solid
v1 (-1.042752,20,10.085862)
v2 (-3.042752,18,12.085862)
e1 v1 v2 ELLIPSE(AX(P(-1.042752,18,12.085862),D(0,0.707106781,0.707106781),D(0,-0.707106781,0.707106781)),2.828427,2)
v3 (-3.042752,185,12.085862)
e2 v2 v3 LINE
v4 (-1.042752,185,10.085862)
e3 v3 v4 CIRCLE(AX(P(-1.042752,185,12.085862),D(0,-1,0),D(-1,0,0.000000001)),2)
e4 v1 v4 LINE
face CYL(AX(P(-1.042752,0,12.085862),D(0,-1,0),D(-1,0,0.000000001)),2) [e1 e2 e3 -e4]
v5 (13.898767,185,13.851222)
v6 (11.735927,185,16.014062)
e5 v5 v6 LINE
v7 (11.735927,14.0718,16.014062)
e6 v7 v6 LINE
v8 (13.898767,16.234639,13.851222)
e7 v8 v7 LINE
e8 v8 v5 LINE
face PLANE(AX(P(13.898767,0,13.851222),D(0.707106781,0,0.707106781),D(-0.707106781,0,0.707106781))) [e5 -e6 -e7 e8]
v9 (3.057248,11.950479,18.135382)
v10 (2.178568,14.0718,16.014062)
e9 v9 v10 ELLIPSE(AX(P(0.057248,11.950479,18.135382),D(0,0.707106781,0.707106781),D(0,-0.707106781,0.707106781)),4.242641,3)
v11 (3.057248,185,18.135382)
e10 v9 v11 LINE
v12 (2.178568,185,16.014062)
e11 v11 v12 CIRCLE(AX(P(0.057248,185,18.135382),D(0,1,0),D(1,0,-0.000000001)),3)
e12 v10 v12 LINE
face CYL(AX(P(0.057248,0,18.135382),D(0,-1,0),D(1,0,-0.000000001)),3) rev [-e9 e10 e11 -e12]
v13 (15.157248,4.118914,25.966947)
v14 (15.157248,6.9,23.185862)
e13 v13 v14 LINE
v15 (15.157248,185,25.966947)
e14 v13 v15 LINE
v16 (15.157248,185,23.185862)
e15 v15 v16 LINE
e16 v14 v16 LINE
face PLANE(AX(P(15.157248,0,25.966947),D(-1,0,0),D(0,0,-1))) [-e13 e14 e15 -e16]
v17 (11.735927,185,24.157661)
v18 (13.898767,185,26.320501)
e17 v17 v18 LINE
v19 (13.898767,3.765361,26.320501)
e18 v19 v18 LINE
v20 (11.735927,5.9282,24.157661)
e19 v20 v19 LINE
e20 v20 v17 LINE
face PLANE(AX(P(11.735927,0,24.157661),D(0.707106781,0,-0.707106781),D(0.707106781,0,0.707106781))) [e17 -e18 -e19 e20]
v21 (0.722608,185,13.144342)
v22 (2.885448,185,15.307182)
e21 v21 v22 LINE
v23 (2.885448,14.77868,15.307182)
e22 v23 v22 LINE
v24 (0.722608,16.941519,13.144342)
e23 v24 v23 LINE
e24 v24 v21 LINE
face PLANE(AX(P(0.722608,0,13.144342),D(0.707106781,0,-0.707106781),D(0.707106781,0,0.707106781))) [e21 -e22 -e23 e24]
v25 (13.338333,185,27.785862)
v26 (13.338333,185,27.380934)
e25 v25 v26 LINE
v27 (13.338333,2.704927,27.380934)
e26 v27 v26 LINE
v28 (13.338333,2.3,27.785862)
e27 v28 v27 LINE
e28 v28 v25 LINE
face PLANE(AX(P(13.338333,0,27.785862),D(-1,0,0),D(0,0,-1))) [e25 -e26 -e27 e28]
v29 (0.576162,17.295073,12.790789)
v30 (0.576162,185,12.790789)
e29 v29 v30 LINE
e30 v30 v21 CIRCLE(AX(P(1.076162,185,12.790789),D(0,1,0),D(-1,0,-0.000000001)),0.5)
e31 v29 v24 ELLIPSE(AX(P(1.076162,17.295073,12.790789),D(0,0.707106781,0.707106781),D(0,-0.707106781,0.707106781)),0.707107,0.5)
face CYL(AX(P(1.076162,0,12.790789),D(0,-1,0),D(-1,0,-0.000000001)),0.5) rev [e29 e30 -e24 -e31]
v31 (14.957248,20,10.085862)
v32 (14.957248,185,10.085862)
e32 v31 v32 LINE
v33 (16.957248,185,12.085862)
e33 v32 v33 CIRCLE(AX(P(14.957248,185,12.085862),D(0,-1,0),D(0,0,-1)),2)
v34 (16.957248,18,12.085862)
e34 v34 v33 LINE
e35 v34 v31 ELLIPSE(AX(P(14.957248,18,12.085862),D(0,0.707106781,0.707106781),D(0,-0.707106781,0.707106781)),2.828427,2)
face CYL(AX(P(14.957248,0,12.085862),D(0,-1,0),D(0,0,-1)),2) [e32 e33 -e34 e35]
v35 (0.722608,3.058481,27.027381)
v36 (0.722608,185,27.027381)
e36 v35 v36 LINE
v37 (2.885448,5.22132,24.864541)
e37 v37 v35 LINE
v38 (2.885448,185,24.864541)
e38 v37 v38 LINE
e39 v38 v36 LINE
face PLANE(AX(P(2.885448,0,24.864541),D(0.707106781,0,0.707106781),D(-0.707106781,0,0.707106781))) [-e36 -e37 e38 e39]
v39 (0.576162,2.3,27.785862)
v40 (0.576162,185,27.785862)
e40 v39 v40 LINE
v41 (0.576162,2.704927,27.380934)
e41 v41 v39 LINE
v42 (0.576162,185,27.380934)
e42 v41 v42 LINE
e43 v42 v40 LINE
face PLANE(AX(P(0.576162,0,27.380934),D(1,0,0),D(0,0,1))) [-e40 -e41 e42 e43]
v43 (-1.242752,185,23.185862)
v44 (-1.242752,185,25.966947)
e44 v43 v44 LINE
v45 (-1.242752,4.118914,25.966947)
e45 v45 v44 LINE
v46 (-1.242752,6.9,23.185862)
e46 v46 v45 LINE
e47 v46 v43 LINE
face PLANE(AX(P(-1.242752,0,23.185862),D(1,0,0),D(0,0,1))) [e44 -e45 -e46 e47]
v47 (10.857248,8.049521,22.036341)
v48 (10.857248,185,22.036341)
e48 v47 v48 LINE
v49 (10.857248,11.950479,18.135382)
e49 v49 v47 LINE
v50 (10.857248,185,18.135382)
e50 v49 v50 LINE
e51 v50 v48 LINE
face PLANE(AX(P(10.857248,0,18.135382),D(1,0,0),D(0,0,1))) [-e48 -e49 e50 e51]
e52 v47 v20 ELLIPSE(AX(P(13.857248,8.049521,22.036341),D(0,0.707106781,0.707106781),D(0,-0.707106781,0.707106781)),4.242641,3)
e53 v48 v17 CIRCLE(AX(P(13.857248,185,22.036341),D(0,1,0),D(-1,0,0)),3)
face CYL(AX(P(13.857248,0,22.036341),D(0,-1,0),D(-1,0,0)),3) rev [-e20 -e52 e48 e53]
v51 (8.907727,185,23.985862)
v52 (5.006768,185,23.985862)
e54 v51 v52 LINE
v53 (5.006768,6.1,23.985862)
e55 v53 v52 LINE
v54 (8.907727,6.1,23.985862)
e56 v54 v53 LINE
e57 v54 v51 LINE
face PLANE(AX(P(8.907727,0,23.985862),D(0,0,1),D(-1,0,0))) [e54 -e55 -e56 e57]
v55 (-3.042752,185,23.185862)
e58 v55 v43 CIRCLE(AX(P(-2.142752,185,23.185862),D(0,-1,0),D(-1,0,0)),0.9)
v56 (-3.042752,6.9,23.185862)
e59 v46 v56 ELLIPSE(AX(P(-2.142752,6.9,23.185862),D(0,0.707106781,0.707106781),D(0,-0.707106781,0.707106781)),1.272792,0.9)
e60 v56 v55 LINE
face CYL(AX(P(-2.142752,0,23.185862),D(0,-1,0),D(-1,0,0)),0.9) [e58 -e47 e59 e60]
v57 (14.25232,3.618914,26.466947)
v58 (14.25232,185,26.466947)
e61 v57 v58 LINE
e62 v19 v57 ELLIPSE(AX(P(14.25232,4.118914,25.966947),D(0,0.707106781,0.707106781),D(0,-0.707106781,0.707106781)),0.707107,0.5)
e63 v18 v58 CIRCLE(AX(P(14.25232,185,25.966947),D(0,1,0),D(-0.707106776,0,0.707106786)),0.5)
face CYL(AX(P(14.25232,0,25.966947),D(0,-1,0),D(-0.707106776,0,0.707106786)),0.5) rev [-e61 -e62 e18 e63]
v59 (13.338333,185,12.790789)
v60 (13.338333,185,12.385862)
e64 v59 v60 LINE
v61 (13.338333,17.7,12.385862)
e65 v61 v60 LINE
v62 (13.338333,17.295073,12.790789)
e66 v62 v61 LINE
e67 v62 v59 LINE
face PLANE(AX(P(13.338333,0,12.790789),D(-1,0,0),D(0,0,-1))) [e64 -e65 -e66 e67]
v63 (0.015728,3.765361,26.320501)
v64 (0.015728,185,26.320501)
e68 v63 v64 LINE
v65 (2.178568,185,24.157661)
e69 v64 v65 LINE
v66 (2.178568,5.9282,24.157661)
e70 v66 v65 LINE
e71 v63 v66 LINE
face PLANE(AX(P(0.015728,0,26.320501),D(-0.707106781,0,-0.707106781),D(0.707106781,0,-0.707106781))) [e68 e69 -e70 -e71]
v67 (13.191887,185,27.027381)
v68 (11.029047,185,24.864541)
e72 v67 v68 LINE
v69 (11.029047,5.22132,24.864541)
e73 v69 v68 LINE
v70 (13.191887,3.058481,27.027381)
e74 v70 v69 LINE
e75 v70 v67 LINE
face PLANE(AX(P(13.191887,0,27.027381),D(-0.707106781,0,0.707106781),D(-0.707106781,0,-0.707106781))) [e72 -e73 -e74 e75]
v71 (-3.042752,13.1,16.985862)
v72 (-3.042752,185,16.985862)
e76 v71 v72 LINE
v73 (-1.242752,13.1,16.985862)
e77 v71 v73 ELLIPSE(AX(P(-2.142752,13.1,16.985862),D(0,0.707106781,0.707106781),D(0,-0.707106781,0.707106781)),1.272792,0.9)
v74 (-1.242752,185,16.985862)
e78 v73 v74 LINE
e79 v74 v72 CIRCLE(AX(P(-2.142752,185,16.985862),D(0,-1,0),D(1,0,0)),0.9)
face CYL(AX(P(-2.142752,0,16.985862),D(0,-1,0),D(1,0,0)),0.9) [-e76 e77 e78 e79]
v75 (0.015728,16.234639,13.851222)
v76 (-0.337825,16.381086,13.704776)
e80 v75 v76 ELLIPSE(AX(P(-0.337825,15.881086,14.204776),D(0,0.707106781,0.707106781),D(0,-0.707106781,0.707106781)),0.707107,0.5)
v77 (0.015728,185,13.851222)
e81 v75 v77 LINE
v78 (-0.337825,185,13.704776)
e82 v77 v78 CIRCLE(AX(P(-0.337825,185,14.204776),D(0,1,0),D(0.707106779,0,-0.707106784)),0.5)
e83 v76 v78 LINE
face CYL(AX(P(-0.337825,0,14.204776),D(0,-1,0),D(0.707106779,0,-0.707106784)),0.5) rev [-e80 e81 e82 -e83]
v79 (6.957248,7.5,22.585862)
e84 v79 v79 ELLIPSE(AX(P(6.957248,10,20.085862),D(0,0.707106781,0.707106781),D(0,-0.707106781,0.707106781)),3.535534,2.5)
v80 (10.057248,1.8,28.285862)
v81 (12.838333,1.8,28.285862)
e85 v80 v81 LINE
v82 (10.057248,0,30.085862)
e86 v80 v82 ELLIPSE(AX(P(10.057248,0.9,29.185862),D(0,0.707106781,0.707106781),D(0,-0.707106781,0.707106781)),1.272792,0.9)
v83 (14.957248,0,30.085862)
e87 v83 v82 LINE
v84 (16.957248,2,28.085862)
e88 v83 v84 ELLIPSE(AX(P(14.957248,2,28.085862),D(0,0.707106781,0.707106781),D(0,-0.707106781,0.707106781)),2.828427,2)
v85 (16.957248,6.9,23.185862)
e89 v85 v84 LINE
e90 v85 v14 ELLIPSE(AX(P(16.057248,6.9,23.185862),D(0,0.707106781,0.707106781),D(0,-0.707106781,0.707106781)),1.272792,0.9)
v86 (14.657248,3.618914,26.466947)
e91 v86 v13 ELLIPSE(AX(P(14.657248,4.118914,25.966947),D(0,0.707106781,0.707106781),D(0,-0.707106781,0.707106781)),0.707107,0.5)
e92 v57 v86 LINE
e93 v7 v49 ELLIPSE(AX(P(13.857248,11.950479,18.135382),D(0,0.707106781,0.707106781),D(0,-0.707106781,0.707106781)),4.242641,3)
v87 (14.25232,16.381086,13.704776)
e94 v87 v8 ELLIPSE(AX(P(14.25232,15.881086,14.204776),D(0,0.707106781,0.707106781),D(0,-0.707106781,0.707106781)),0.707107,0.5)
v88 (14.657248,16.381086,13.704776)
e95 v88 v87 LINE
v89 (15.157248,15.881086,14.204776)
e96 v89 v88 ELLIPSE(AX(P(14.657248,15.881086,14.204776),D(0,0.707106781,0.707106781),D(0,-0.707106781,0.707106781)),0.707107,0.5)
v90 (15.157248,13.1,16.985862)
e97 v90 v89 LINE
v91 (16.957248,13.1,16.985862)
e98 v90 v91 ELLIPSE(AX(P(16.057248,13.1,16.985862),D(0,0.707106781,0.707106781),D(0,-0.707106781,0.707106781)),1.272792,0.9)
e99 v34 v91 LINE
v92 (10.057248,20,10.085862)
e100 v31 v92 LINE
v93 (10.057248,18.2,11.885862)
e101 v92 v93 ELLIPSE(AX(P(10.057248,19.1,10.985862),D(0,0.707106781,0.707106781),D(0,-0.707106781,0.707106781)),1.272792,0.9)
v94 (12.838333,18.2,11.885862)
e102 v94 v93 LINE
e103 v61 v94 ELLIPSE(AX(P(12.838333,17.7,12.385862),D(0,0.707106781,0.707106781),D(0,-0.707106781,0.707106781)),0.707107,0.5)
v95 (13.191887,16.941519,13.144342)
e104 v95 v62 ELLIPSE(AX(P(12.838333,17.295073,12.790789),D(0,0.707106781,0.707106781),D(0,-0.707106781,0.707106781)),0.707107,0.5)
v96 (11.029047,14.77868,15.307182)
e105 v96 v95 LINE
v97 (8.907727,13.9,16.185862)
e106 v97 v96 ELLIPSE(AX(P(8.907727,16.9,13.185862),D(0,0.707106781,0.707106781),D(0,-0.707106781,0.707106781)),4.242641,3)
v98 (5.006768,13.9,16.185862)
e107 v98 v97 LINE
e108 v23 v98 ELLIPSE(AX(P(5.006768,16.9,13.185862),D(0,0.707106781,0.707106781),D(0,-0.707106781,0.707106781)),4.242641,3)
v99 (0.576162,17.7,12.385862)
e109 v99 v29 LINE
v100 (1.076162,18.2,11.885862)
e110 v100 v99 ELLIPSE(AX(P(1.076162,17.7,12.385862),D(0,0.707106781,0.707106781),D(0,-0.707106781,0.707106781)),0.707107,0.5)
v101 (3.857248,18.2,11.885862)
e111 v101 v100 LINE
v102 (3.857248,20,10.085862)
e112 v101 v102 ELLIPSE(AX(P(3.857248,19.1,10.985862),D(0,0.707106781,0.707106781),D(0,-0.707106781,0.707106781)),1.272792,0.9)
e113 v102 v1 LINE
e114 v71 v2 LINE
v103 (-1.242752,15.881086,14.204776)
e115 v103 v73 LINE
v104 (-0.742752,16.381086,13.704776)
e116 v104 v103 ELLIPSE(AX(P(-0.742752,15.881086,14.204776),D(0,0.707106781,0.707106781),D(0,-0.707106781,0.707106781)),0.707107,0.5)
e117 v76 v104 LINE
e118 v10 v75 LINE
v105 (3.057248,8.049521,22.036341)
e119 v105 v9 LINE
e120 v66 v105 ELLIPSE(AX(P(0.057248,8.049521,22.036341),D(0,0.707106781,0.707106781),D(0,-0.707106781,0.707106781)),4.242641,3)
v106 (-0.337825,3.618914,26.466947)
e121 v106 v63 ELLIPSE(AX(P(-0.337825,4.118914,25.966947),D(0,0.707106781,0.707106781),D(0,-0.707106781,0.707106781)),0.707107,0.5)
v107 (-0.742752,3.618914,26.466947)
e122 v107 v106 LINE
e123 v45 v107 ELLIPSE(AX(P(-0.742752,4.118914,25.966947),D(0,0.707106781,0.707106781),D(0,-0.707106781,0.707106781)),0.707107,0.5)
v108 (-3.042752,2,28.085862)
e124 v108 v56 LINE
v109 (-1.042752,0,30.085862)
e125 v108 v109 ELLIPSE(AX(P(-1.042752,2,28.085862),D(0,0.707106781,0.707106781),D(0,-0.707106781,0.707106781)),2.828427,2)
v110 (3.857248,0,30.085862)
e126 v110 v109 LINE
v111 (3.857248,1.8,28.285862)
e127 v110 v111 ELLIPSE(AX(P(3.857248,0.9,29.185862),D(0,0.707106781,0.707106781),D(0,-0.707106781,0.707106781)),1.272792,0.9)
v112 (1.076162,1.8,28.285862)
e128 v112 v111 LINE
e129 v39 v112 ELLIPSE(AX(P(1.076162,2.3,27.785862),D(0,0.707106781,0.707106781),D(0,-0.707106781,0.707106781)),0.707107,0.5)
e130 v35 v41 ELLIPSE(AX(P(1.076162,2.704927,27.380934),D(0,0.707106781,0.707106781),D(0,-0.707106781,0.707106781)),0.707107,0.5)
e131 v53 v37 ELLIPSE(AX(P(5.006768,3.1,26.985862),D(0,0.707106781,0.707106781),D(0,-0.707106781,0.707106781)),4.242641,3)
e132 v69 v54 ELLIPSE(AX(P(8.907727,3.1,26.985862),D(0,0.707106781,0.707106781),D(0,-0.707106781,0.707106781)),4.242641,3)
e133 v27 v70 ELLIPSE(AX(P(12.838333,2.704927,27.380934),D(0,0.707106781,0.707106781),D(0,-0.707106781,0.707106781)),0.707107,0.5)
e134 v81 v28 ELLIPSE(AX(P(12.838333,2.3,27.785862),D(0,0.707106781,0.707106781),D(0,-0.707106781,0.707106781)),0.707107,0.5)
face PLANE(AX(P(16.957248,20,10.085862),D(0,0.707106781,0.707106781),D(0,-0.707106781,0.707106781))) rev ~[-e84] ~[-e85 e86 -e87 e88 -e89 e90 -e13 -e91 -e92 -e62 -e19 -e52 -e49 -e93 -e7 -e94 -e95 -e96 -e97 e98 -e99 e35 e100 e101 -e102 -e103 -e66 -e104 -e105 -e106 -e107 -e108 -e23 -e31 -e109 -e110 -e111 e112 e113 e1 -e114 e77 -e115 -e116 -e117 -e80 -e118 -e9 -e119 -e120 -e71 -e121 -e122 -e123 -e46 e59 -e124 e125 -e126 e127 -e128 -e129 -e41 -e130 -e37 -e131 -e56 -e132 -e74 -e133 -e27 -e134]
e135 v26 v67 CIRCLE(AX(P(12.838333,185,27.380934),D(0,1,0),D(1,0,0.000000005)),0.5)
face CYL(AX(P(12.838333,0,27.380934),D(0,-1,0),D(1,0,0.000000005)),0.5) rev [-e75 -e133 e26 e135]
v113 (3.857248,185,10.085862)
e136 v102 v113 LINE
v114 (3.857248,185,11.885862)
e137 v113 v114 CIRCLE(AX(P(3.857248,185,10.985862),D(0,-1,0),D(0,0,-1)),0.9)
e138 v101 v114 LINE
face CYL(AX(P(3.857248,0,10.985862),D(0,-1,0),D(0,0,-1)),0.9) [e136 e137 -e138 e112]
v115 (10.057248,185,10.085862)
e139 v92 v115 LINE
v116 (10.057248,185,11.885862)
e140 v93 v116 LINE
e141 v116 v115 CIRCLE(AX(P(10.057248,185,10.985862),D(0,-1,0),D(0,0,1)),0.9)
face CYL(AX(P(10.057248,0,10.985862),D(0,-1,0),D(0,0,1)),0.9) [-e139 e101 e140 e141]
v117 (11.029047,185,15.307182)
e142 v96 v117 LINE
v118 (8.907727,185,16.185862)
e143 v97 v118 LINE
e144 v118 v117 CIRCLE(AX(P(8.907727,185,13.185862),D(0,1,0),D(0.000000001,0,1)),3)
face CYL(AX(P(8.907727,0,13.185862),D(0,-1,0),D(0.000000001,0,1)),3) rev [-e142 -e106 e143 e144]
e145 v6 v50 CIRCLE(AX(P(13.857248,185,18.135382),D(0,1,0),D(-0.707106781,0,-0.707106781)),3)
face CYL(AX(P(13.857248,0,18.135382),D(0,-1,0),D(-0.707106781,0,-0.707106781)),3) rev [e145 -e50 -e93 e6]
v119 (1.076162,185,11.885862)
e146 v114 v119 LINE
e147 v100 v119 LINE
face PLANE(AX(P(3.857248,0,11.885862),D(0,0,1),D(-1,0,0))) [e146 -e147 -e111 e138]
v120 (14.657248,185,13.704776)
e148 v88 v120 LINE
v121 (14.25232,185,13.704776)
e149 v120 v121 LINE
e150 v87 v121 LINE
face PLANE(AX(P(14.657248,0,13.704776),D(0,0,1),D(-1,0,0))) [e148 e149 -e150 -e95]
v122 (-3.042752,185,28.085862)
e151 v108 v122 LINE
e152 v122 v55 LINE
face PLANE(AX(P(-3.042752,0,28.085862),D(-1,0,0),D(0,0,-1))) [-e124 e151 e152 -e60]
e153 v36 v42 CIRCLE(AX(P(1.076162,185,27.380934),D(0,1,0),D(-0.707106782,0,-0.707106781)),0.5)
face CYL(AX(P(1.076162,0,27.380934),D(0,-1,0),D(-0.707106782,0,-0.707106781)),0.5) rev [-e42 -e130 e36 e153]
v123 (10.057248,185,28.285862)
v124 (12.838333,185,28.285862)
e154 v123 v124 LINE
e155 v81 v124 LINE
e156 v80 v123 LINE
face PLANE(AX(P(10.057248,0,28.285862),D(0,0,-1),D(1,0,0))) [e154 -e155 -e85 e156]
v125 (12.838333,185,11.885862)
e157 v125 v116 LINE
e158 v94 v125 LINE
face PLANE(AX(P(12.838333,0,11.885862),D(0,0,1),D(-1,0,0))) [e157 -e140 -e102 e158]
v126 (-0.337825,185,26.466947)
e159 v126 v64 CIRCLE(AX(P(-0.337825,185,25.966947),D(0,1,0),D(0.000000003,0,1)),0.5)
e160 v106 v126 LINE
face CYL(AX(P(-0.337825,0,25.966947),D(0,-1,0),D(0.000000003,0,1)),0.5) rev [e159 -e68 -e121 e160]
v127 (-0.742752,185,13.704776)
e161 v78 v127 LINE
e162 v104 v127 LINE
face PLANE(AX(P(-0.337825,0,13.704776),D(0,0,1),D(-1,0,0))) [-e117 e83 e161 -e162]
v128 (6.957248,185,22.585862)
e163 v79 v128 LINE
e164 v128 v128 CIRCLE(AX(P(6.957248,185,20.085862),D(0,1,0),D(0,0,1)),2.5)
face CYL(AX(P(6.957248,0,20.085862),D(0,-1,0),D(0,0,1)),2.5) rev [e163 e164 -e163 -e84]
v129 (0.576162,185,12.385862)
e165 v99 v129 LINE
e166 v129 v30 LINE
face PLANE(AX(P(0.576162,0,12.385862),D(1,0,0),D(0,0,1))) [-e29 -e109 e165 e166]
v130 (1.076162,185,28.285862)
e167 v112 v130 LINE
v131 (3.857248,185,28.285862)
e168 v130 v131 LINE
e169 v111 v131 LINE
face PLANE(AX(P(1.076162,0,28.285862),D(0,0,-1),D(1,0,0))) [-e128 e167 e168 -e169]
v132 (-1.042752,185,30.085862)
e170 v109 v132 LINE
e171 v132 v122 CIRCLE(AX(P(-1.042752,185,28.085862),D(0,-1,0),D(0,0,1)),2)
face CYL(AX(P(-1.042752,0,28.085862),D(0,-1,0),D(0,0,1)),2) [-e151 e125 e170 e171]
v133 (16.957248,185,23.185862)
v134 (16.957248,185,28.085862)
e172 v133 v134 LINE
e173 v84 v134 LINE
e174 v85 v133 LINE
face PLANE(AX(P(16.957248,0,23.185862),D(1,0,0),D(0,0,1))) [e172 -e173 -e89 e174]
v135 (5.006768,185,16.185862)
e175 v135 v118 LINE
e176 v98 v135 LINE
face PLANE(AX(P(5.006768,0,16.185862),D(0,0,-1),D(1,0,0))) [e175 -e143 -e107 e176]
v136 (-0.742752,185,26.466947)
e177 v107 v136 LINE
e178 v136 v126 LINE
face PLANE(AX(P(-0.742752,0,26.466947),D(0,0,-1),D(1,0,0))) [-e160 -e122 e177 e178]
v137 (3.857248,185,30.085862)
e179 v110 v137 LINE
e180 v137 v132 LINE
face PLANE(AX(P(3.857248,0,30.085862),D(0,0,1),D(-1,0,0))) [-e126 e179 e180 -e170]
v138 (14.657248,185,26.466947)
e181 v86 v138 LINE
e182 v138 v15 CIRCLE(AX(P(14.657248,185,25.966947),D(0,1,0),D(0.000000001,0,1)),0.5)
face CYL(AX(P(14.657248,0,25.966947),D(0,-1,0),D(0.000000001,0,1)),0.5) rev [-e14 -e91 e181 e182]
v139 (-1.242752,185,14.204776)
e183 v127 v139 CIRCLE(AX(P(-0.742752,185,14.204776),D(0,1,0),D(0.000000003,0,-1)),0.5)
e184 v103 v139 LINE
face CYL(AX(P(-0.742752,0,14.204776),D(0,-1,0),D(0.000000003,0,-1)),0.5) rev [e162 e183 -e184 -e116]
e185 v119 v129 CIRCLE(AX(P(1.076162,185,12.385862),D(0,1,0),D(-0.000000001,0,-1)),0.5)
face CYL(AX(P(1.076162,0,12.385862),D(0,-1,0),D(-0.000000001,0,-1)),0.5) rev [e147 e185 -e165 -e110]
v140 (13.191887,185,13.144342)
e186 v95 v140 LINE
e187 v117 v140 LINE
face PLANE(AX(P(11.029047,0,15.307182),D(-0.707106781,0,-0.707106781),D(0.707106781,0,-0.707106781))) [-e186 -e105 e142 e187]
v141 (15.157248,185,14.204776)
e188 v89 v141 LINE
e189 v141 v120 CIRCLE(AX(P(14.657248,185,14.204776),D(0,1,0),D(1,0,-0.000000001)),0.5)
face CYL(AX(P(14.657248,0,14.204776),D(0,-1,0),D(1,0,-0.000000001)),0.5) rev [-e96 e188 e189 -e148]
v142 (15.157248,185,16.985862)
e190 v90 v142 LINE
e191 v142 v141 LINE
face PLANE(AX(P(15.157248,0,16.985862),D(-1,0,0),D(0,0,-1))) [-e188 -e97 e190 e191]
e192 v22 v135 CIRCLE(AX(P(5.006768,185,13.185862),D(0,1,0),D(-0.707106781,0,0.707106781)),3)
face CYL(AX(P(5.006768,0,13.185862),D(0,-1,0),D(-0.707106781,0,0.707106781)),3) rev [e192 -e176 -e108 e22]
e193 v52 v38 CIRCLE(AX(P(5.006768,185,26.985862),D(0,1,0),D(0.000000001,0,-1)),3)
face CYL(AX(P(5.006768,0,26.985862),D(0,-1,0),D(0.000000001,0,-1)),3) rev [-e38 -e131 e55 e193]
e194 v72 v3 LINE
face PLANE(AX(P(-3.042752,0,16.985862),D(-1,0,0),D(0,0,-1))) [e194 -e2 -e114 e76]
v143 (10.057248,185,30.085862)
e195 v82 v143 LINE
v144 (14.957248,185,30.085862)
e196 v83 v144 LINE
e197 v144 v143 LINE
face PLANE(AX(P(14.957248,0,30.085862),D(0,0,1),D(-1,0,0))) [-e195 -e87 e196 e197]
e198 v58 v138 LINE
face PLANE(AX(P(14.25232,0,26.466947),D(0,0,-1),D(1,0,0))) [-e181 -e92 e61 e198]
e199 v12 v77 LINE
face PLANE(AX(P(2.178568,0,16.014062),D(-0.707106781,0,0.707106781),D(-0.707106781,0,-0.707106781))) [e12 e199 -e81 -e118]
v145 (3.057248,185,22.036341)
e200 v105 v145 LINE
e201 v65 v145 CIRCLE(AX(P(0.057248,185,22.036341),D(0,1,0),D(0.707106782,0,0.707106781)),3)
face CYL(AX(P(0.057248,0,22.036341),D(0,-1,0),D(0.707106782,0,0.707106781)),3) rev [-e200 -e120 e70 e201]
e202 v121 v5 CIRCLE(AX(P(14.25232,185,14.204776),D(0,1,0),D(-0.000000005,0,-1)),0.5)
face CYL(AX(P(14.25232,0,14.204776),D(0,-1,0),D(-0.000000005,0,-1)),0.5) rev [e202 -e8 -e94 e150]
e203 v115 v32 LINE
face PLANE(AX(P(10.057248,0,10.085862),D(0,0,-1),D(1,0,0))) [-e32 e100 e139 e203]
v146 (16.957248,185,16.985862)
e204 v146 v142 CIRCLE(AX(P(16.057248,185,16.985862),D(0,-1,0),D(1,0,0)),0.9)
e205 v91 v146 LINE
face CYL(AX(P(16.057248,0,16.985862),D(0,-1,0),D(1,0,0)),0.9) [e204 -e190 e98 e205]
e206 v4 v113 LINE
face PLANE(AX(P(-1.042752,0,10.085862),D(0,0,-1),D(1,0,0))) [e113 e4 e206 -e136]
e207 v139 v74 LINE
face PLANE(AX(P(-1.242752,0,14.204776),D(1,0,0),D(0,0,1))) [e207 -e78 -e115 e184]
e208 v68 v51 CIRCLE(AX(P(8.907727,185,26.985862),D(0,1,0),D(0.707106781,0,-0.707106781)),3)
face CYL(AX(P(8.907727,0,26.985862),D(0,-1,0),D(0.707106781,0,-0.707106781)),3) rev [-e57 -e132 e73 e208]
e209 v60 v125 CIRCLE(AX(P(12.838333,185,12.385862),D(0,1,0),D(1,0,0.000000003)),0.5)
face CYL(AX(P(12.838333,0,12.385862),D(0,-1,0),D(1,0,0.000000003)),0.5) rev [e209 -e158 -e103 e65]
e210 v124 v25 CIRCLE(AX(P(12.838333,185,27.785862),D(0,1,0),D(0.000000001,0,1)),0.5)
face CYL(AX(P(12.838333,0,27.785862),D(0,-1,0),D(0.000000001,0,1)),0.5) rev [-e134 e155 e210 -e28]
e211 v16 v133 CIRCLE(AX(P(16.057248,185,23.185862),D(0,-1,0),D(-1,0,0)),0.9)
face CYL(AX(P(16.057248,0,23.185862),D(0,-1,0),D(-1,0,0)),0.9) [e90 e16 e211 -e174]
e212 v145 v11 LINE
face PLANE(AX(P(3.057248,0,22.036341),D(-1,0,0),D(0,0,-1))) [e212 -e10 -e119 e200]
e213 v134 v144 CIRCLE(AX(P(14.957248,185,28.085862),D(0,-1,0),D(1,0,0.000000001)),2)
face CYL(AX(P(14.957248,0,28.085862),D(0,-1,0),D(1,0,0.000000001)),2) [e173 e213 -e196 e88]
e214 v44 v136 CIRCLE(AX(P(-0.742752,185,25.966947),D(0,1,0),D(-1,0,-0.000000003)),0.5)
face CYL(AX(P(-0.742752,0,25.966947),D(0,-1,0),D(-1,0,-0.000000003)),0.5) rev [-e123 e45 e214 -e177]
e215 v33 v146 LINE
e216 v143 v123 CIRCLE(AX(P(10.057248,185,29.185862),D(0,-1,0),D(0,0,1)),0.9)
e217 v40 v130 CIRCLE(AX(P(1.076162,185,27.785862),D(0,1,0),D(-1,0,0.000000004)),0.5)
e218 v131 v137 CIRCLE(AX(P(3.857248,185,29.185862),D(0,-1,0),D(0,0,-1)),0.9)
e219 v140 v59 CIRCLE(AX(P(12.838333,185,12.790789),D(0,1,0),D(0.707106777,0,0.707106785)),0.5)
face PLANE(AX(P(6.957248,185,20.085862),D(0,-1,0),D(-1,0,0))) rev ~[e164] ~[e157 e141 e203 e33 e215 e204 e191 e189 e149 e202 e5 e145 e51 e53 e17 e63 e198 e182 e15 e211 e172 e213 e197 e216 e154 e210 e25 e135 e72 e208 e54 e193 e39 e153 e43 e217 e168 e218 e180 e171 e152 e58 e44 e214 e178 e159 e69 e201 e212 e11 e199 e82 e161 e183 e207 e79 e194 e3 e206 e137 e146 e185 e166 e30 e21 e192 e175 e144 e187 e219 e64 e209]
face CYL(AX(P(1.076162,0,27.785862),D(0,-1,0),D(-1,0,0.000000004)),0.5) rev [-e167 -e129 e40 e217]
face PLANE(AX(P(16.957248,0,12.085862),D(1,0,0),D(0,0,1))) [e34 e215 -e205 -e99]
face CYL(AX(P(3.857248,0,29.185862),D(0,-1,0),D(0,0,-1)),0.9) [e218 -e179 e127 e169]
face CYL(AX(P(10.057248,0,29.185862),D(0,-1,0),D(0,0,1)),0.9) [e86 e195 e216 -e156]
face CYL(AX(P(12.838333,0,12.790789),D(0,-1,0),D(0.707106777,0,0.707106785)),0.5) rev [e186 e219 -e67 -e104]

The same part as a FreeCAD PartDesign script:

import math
import FreeCAD as App
import Part
import Sketcher
Q = App.Units.Quantity

doc = App.newDocument("Part")
params = doc.addObject("Spreadsheet::Sheet", "Params")
for row, (alias, value) in enumerate([
    ("sketch1_diameter", "5 mm"),
    ("sketch1_radius", "2 mm"),
    ("sketch1_radius2", "3 mm"),
    ("sketch1_radius3", "0.9 mm"),
    ("sketch1_radius4", "0.5 mm"),
    ("pad1_length", "185 mm"),
    ("sketch2_width", "20 mm"),
], start=1):
    params.set(f"A{row}", alias)
    params.set(f"B{row}", "=" + value)
    params.setAlias(f"B{row}", alias)

body = doc.addObject("PartDesign::Body", "Body")

# Sketch on XZ plane
sketch1 = body.newObject("Sketcher::SketchObject", "Sketch")
sketch1.AttachmentSupport = (doc.getObject("XZ_Plane"), [""])
sketch1.MapMode = "FlatFace"
sketch1.addGeometry(Part.LineSegment(App.Vector(3.86, 10.09, 0), App.Vector(-1.04, 10.09, 0)), False)
sketch1.addGeometry(Part.ArcOfCircle(Part.Circle(App.Vector(-1.04, 12.09, 0), App.Vector(0, 0, 1), 2), math.radians(180), math.radians(270)), False)
sketch1.addGeometry(Part.LineSegment(App.Vector(-3.04, 12.09, 0), App.Vector(-3.04, 16.99, 0)), False)
sketch1.addGeometry(Part.ArcOfCircle(Part.Circle(App.Vector(-2.14, 16.99, 0), App.Vector(0, 0, 1), 0.9), math.radians(0), math.radians(180)), False)
sketch1.addGeometry(Part.LineSegment(App.Vector(-1.24, 16.99, 0), App.Vector(-1.24, 14.2, 0)), False)
sketch1.addGeometry(Part.ArcOfCircle(Part.Circle(App.Vector(-0.74, 14.2, 0), App.Vector(0, 0, 1), 0.5), math.radians(180), math.radians(270)), False)
sketch1.addGeometry(Part.LineSegment(App.Vector(-0.74, 13.7, 0), App.Vector(-0.34, 13.7, 0)), False)
sketch1.addGeometry(Part.ArcOfCircle(Part.Circle(App.Vector(-0.34, 14.2, 0), App.Vector(0, 0, 1), 0.5), math.radians(-90), math.radians(-45)), False)
sketch1.addGeometry(Part.LineSegment(App.Vector(0.02, 13.85, 0), App.Vector(2.18, 16.01, 0)), False)
sketch1.addGeometry(Part.ArcOfCircle(Part.Circle(App.Vector(0.06, 18.14, 0), App.Vector(0, 0, 1), 3), math.radians(-45), math.radians(0)), False)
sketch1.addGeometry(Part.LineSegment(App.Vector(3.06, 18.14, 0), App.Vector(3.06, 22.04, 0)), False)
sketch1.addGeometry(Part.ArcOfCircle(Part.Circle(App.Vector(0.06, 22.04, 0), App.Vector(0, 0, 1), 3), math.radians(0), math.radians(45)), False)
sketch1.addGeometry(Part.LineSegment(App.Vector(2.18, 24.16, 0), App.Vector(0.02, 26.32, 0)), False)
sketch1.addGeometry(Part.ArcOfCircle(Part.Circle(App.Vector(-0.34, 25.97, 0), App.Vector(0, 0, 1), 0.5), math.radians(45), math.radians(90)), False)
sketch1.addGeometry(Part.LineSegment(App.Vector(-0.34, 26.47, 0), App.Vector(-0.74, 26.47, 0)), False)
sketch1.addGeometry(Part.ArcOfCircle(Part.Circle(App.Vector(-0.74, 25.97, 0), App.Vector(0, 0, 1), 0.5), math.radians(90), math.radians(180)), False)
sketch1.addGeometry(Part.LineSegment(App.Vector(-1.24, 25.97, 0), App.Vector(-1.24, 23.19, 0)), False)
sketch1.addGeometry(Part.ArcOfCircle(Part.Circle(App.Vector(-2.14, 23.19, 0), App.Vector(0, 0, 1), 0.9), math.radians(180), math.radians(360)), False)
sketch1.addGeometry(Part.LineSegment(App.Vector(-3.04, 23.19, 0), App.Vector(-3.04, 28.09, 0)), False)
sketch1.addGeometry(Part.ArcOfCircle(Part.Circle(App.Vector(-1.04, 28.09, 0), App.Vector(0, 0, 1), 2), math.radians(90), math.radians(180)), False)
sketch1.addGeometry(Part.LineSegment(App.Vector(-1.04, 30.09, 0), App.Vector(3.86, 30.09, 0)), False)
sketch1.addGeometry(Part.ArcOfCircle(Part.Circle(App.Vector(3.86, 29.19, 0), App.Vector(0, 0, 1), 0.9), math.radians(-90), math.radians(90)), False)
sketch1.addGeometry(Part.LineSegment(App.Vector(3.86, 28.29, 0), App.Vector(1.08, 28.29, 0)), False)
sketch1.addGeometry(Part.ArcOfCircle(Part.Circle(App.Vector(1.08, 27.79, 0), App.Vector(0, 0, 1), 0.5), math.radians(90), math.radians(180)), False)
sketch1.addGeometry(Part.LineSegment(App.Vector(0.58, 27.79, 0), App.Vector(0.58, 27.38, 0)), False)
sketch1.addGeometry(Part.ArcOfCircle(Part.Circle(App.Vector(1.08, 27.38, 0), App.Vector(0, 0, 1), 0.5), math.radians(-180), math.radians(-135)), False)
sketch1.addGeometry(Part.LineSegment(App.Vector(0.72, 27.03, 0), App.Vector(2.89, 24.86, 0)), False)
sketch1.addGeometry(Part.ArcOfCircle(Part.Circle(App.Vector(5.01, 26.99, 0), App.Vector(0, 0, 1), 3), math.radians(-135), math.radians(-90)), False)
sketch1.addGeometry(Part.LineSegment(App.Vector(5.01, 23.99, 0), App.Vector(8.91, 23.99, 0)), False)
sketch1.addGeometry(Part.ArcOfCircle(Part.Circle(App.Vector(8.91, 26.99, 0), App.Vector(0, 0, 1), 3), math.radians(-90), math.radians(-45)), False)
sketch1.addGeometry(Part.LineSegment(App.Vector(11.03, 24.86, 0), App.Vector(13.19, 27.03, 0)), False)
sketch1.addGeometry(Part.ArcOfCircle(Part.Circle(App.Vector(12.84, 27.38, 0), App.Vector(0, 0, 1), 0.5), math.radians(-45), math.radians(0)), False)
sketch1.addGeometry(Part.LineSegment(App.Vector(13.34, 27.38, 0), App.Vector(13.34, 27.79, 0)), False)
sketch1.addGeometry(Part.ArcOfCircle(Part.Circle(App.Vector(12.84, 27.79, 0), App.Vector(0, 0, 1), 0.5), math.radians(0), math.radians(90)), False)
sketch1.addGeometry(Part.LineSegment(App.Vector(12.84, 28.29, 0), App.Vector(10.06, 28.29, 0)), False)
sketch1.addGeometry(Part.ArcOfCircle(Part.Circle(App.Vector(10.06, 29.19, 0), App.Vector(0, 0, 1), 0.9), math.radians(90), math.radians(270)), False)
sketch1.addGeometry(Part.LineSegment(App.Vector(10.06, 30.09, 0), App.Vector(14.96, 30.09, 0)), False)
sketch1.addGeometry(Part.ArcOfCircle(Part.Circle(App.Vector(14.96, 28.09, 0), App.Vector(0, 0, 1), 2), math.radians(0), math.radians(90)), False)
sketch1.addGeometry(Part.LineSegment(App.Vector(16.96, 28.09, 0), App.Vector(16.96, 23.19, 0)), False)
sketch1.addGeometry(Part.ArcOfCircle(Part.Circle(App.Vector(16.06, 23.19, 0), App.Vector(0, 0, 1), 0.9), math.radians(180), math.radians(360)), False)
sketch1.addGeometry(Part.LineSegment(App.Vector(15.16, 23.19, 0), App.Vector(15.16, 25.97, 0)), False)
sketch1.addGeometry(Part.ArcOfCircle(Part.Circle(App.Vector(14.66, 25.97, 0), App.Vector(0, 0, 1), 0.5), math.radians(0), math.radians(90)), False)
sketch1.addGeometry(Part.LineSegment(App.Vector(14.66, 26.47, 0), App.Vector(14.25, 26.47, 0)), False)
sketch1.addGeometry(Part.ArcOfCircle(Part.Circle(App.Vector(14.25, 25.97, 0), App.Vector(0, 0, 1), 0.5), math.radians(90), math.radians(135)), False)
sketch1.addGeometry(Part.LineSegment(App.Vector(13.9, 26.32, 0), App.Vector(11.74, 24.16, 0)), False)
sketch1.addGeometry(Part.ArcOfCircle(Part.Circle(App.Vector(13.86, 22.04, 0), App.Vector(0, 0, 1), 3), math.radians(135), math.radians(180)), False)
sketch1.addGeometry(Part.LineSegment(App.Vector(10.86, 22.04, 0), App.Vector(10.86, 18.14, 0)), False)
sketch1.addGeometry(Part.ArcOfCircle(Part.Circle(App.Vector(13.86, 18.14, 0), App.Vector(0, 0, 1), 3), math.radians(180), math.radians(225)), False)
sketch1.addGeometry(Part.LineSegment(App.Vector(11.74, 16.01, 0), App.Vector(13.9, 13.85, 0)), False)
sketch1.addGeometry(Part.ArcOfCircle(Part.Circle(App.Vector(14.25, 14.2, 0), App.Vector(0, 0, 1), 0.5), math.radians(-135), math.radians(-90)), False)
sketch1.addGeometry(Part.LineSegment(App.Vector(14.25, 13.7, 0), App.Vector(14.66, 13.7, 0)), False)
sketch1.addGeometry(Part.ArcOfCircle(Part.Circle(App.Vector(14.66, 14.2, 0), App.Vector(0, 0, 1), 0.5), math.radians(-90), math.radians(0)), False)
sketch1.addGeometry(Part.LineSegment(App.Vector(15.16, 14.2, 0), App.Vector(15.16, 16.99, 0)), False)
sketch1.addGeometry(Part.ArcOfCircle(Part.Circle(App.Vector(16.06, 16.99, 0), App.Vector(0, 0, 1), 0.9), math.radians(0), math.radians(180)), False)
sketch1.addGeometry(Part.LineSegment(App.Vector(16.96, 16.99, 0), App.Vector(16.96, 12.09, 0)), False)
sketch1.addGeometry(Part.ArcOfCircle(Part.Circle(App.Vector(14.96, 12.09, 0), App.Vector(0, 0, 1), 2), math.radians(-90), math.radians(0)), False)
sketch1.addGeometry(Part.LineSegment(App.Vector(14.96, 10.09, 0), App.Vector(10.06, 10.09, 0)), False)
sketch1.addGeometry(Part.ArcOfCircle(Part.Circle(App.Vector(10.06, 10.99, 0), App.Vector(0, 0, 1), 0.9), math.radians(90), math.radians(270)), False)
sketch1.addGeometry(Part.LineSegment(App.Vector(10.06, 11.89, 0), App.Vector(12.84, 11.89, 0)), False)
sketch1.addGeometry(Part.ArcOfCircle(Part.Circle(App.Vector(12.84, 12.39, 0), App.Vector(0, 0, 1), 0.5), math.radians(-90), math.radians(0)), False)
sketch1.addGeometry(Part.LineSegment(App.Vector(13.34, 12.39, 0), App.Vector(13.34, 12.79, 0)), False)
sketch1.addGeometry(Part.ArcOfCircle(Part.Circle(App.Vector(12.84, 12.79, 0), App.Vector(0, 0, 1), 0.5), math.radians(0), math.radians(45)), False)
sketch1.addGeometry(Part.LineSegment(App.Vector(13.19, 13.14, 0), App.Vector(11.03, 15.31, 0)), False)
sketch1.addGeometry(Part.ArcOfCircle(Part.Circle(App.Vector(8.91, 13.19, 0), App.Vector(0, 0, 1), 3), math.radians(45), math.radians(90)), False)
sketch1.addGeometry(Part.LineSegment(App.Vector(8.91, 16.19, 0), App.Vector(5.01, 16.19, 0)), False)
sketch1.addGeometry(Part.ArcOfCircle(Part.Circle(App.Vector(5.01, 13.19, 0), App.Vector(0, 0, 1), 3), math.radians(90), math.radians(135)), False)
sketch1.addGeometry(Part.LineSegment(App.Vector(2.89, 15.31, 0), App.Vector(0.72, 13.14, 0)), False)
sketch1.addGeometry(Part.ArcOfCircle(Part.Circle(App.Vector(1.08, 12.79, 0), App.Vector(0, 0, 1), 0.5), math.radians(135), math.radians(180)), False)
sketch1.addGeometry(Part.LineSegment(App.Vector(0.58, 12.79, 0), App.Vector(0.58, 12.39, 0)), False)
sketch1.addGeometry(Part.ArcOfCircle(Part.Circle(App.Vector(1.08, 12.39, 0), App.Vector(0, 0, 1), 0.5), math.radians(180), math.radians(270)), False)
sketch1.addGeometry(Part.LineSegment(App.Vector(1.08, 11.89, 0), App.Vector(3.86, 11.89, 0)), False)
sketch1.addGeometry(Part.ArcOfCircle(Part.Circle(App.Vector(3.86, 10.99, 0), App.Vector(0, 0, 1), 0.9), math.radians(-90), math.radians(90)), False)
sketch1.addGeometry(Part.Circle(App.Vector(6.96, 20.09, 0), App.Vector(0, 0, 1), 2.5), False)
sketch1.addConstraint(Sketcher.Constraint("Tangent", 0, 2, 1, 2))
sketch1.addConstraint(Sketcher.Constraint("Tangent", 1, 1, 2, 1))
sketch1.addConstraint(Sketcher.Constraint("Tangent", 2, 2, 3, 2))
sketch1.addConstraint(Sketcher.Constraint("Tangent", 3, 1, 4, 1))
sketch1.addConstraint(Sketcher.Constraint("Tangent", 4, 2, 5, 1))
sketch1.addConstraint(Sketcher.Constraint("Tangent", 5, 2, 6, 1))
sketch1.addConstraint(Sketcher.Constraint("Tangent", 6, 2, 7, 1))
sketch1.addConstraint(Sketcher.Constraint("Tangent", 7, 2, 8, 1))
sketch1.addConstraint(Sketcher.Constraint("Tangent", 8, 2, 9, 1))
sketch1.addConstraint(Sketcher.Constraint("Tangent", 9, 2, 10, 1))
sketch1.addConstraint(Sketcher.Constraint("Tangent", 10, 2, 11, 1))
sketch1.addConstraint(Sketcher.Constraint("Tangent", 11, 2, 12, 1))
sketch1.addConstraint(Sketcher.Constraint("Tangent", 12, 2, 13, 1))
sketch1.addConstraint(Sketcher.Constraint("Tangent", 13, 2, 14, 1))
sketch1.addConstraint(Sketcher.Constraint("Tangent", 14, 2, 15, 1))
sketch1.addConstraint(Sketcher.Constraint("Tangent", 15, 2, 16, 1))
sketch1.addConstraint(Sketcher.Constraint("Tangent", 16, 2, 17, 2))
sketch1.addConstraint(Sketcher.Constraint("Tangent", 17, 1, 18, 1))
sketch1.addConstraint(Sketcher.Constraint("Tangent", 18, 2, 19, 2))
sketch1.addConstraint(Sketcher.Constraint("Tangent", 19, 1, 20, 1))
sketch1.addConstraint(Sketcher.Constraint("Tangent", 20, 2, 21, 2))
sketch1.addConstraint(Sketcher.Constraint("Tangent", 21, 1, 22, 1))
sketch1.addConstraint(Sketcher.Constraint("Tangent", 22, 2, 23, 1))
sketch1.addConstraint(Sketcher.Constraint("Tangent", 23, 2, 24, 1))
sketch1.addConstraint(Sketcher.Constraint("Tangent", 24, 2, 25, 1))
sketch1.addConstraint(Sketcher.Constraint("Tangent", 25, 2, 26, 1))
sketch1.addConstraint(Sketcher.Constraint("Tangent", 26, 2, 27, 1))
sketch1.addConstraint(Sketcher.Constraint("Tangent", 27, 2, 28, 1))
sketch1.addConstraint(Sketcher.Constraint("Tangent", 28, 2, 29, 1))
sketch1.addConstraint(Sketcher.Constraint("Tangent", 29, 2, 30, 1))
sketch1.addConstraint(Sketcher.Constraint("Tangent", 30, 2, 31, 1))
sketch1.addConstraint(Sketcher.Constraint("Tangent", 31, 2, 32, 1))
sketch1.addConstraint(Sketcher.Constraint("Tangent", 32, 2, 33, 1))
sketch1.addConstraint(Sketcher.Constraint("Tangent", 33, 2, 34, 1))
sketch1.addConstraint(Sketcher.Constraint("Tangent", 34, 2, 35, 2))
sketch1.addConstraint(Sketcher.Constraint("Tangent", 35, 1, 36, 1))
sketch1.addConstraint(Sketcher.Constraint("Tangent", 36, 2, 37, 2))
sketch1.addConstraint(Sketcher.Constraint("Tangent", 37, 1, 38, 1))
sketch1.addConstraint(Sketcher.Constraint("Tangent", 38, 2, 39, 2))
sketch1.addConstraint(Sketcher.Constraint("Tangent", 39, 1, 40, 1))
sketch1.addConstraint(Sketcher.Constraint("Tangent", 40, 2, 41, 1))
sketch1.addConstraint(Sketcher.Constraint("Tangent", 41, 2, 42, 1))
sketch1.addConstraint(Sketcher.Constraint("Tangent", 42, 2, 43, 1))
sketch1.addConstraint(Sketcher.Constraint("Tangent", 43, 2, 44, 1))
sketch1.addConstraint(Sketcher.Constraint("Tangent", 44, 2, 45, 1))
sketch1.addConstraint(Sketcher.Constraint("Tangent", 45, 2, 46, 1))
sketch1.addConstraint(Sketcher.Constraint("Tangent", 46, 2, 47, 1))
sketch1.addConstraint(Sketcher.Constraint("Tangent", 47, 2, 48, 1))
sketch1.addConstraint(Sketcher.Constraint("Tangent", 48, 2, 49, 1))
sketch1.addConstraint(Sketcher.Constraint("Tangent", 49, 2, 50, 1))
sketch1.addConstraint(Sketcher.Constraint("Tangent", 50, 2, 51, 1))
sketch1.addConstraint(Sketcher.Constraint("Tangent", 51, 2, 52, 1))
sketch1.addConstraint(Sketcher.Constraint("Tangent", 52, 2, 53, 2))
sketch1.addConstraint(Sketcher.Constraint("Tangent", 53, 1, 54, 1))
sketch1.addConstraint(Sketcher.Constraint("Tangent", 54, 2, 55, 2))
sketch1.addConstraint(Sketcher.Constraint("Tangent", 55, 1, 56, 1))
sketch1.addConstraint(Sketcher.Constraint("Tangent", 56, 2, 57, 2))
sketch1.addConstraint(Sketcher.Constraint("Tangent", 57, 1, 58, 1))
sketch1.addConstraint(Sketcher.Constraint("Tangent", 58, 2, 59, 1))
sketch1.addConstraint(Sketcher.Constraint("Tangent", 59, 2, 60, 1))
sketch1.addConstraint(Sketcher.Constraint("Tangent", 60, 2, 61, 1))
sketch1.addConstraint(Sketcher.Constraint("Tangent", 61, 2, 62, 1))
sketch1.addConstraint(Sketcher.Constraint("Tangent", 62, 2, 63, 1))
sketch1.addConstraint(Sketcher.Constraint("Tangent", 63, 2, 64, 1))
sketch1.addConstraint(Sketcher.Constraint("Tangent", 64, 2, 65, 1))
sketch1.addConstraint(Sketcher.Constraint("Tangent", 65, 2, 66, 1))
sketch1.addConstraint(Sketcher.Constraint("Tangent", 66, 2, 67, 1))
sketch1.addConstraint(Sketcher.Constraint("Tangent", 67, 2, 68, 1))
sketch1.addConstraint(Sketcher.Constraint("Tangent", 68, 2, 69, 1))
sketch1.addConstraint(Sketcher.Constraint("Tangent", 69, 2, 70, 1))
sketch1.addConstraint(Sketcher.Constraint("Tangent", 70, 2, 71, 2))
sketch1.addConstraint(Sketcher.Constraint("Tangent", 71, 1, 0, 1))
sketch1.addConstraint(Sketcher.Constraint("Horizontal", 0))
sketch1.addConstraint(Sketcher.Constraint("Vertical", 2))
sketch1.addConstraint(Sketcher.Constraint("Vertical", 4))
sketch1.addConstraint(Sketcher.Constraint("Horizontal", 6))
sketch1.addConstraint(Sketcher.Constraint("Vertical", 10))
sketch1.addConstraint(Sketcher.Constraint("Horizontal", 14))
sketch1.addConstraint(Sketcher.Constraint("Vertical", 16))
sketch1.addConstraint(Sketcher.Constraint("Vertical", 18))
sketch1.addConstraint(Sketcher.Constraint("Horizontal", 20))
sketch1.addConstraint(Sketcher.Constraint("Horizontal", 22))
sketch1.addConstraint(Sketcher.Constraint("Vertical", 24))
sketch1.addConstraint(Sketcher.Constraint("Horizontal", 28))
sketch1.addConstraint(Sketcher.Constraint("Vertical", 32))
sketch1.addConstraint(Sketcher.Constraint("Horizontal", 34))
sketch1.addConstraint(Sketcher.Constraint("Horizontal", 36))
sketch1.addConstraint(Sketcher.Constraint("Vertical", 38))
sketch1.addConstraint(Sketcher.Constraint("Vertical", 40))
sketch1.addConstraint(Sketcher.Constraint("Horizontal", 42))
sketch1.addConstraint(Sketcher.Constraint("Vertical", 46))
sketch1.addConstraint(Sketcher.Constraint("Horizontal", 50))
sketch1.addConstraint(Sketcher.Constraint("Vertical", 52))
sketch1.addConstraint(Sketcher.Constraint("Vertical", 54))
sketch1.addConstraint(Sketcher.Constraint("Horizontal", 56))
sketch1.addConstraint(Sketcher.Constraint("Horizontal", 58))
sketch1.addConstraint(Sketcher.Constraint("Vertical", 60))
sketch1.addConstraint(Sketcher.Constraint("Horizontal", 64))
sketch1.addConstraint(Sketcher.Constraint("Vertical", 68))
sketch1.addConstraint(Sketcher.Constraint("Horizontal", 70))
sketch1.addConstraint(Sketcher.Constraint("Equal", 5, 7))
sketch1.addConstraint(Sketcher.Constraint("Equal", 9, 11))
sketch1.addConstraint(Sketcher.Constraint("Equal", 7, 13))
sketch1.addConstraint(Sketcher.Constraint("Equal", 13, 15))
sketch1.addConstraint(Sketcher.Constraint("Equal", 3, 17))
sketch1.addConstraint(Sketcher.Constraint("Equal", 1, 19))
sketch1.addConstraint(Sketcher.Constraint("Equal", 17, 21))
sketch1.addConstraint(Sketcher.Constraint("Equal", 15, 23))
sketch1.addConstraint(Sketcher.Constraint("Equal", 23, 25))
sketch1.addConstraint(Sketcher.Constraint("Equal", 11, 27))
sketch1.addConstraint(Sketcher.Constraint("Equal", 27, 29))
sketch1.addConstraint(Sketcher.Constraint("Equal", 25, 31))
sketch1.addConstraint(Sketcher.Constraint("Equal", 31, 33))
sketch1.addConstraint(Sketcher.Constraint("Equal", 21, 35))
sketch1.addConstraint(Sketcher.Constraint("Equal", 19, 37))
sketch1.addConstraint(Sketcher.Constraint("Equal", 35, 39))
sketch1.addConstraint(Sketcher.Constraint("Equal", 33, 41))
sketch1.addConstraint(Sketcher.Constraint("Equal", 41, 43))
sketch1.addConstraint(Sketcher.Constraint("Equal", 29, 45))
sketch1.addConstraint(Sketcher.Constraint("Equal", 45, 47))
sketch1.addConstraint(Sketcher.Constraint("Equal", 43, 49))
sketch1.addConstraint(Sketcher.Constraint("Equal", 49, 51))
sketch1.addConstraint(Sketcher.Constraint("Equal", 39, 53))
sketch1.addConstraint(Sketcher.Constraint("Equal", 37, 55))
sketch1.addConstraint(Sketcher.Constraint("Equal", 53, 57))
sketch1.addConstraint(Sketcher.Constraint("Equal", 51, 59))
sketch1.addConstraint(Sketcher.Constraint("Equal", 59, 61))
sketch1.addConstraint(Sketcher.Constraint("Equal", 47, 63))
sketch1.addConstraint(Sketcher.Constraint("Equal", 63, 65))
sketch1.addConstraint(Sketcher.Constraint("Equal", 61, 67))
sketch1.addConstraint(Sketcher.Constraint("Equal", 67, 69))
sketch1.addConstraint(Sketcher.Constraint("Equal", 57, 71))
sketch1.addConstraint(Sketcher.Constraint("Perpendicular", 8, 12))
sketch1.addConstraint(Sketcher.Constraint("Parallel", 12, 26))
sketch1.addConstraint(Sketcher.Constraint("Perpendicular", 26, 30))
sketch1.addConstraint(Sketcher.Constraint("Parallel", 30, 44))
sketch1.addConstraint(Sketcher.Constraint("Perpendicular", 44, 48))
sketch1.addConstraint(Sketcher.Constraint("Parallel", 48, 62))
sketch1.addConstraint(Sketcher.Constraint("Perpendicular", 62, 66))
sketch1.addConstraint(Sketcher.Constraint("Horizontal", 25, 3, 31, 3))
sketch1.addConstraint(Sketcher.Constraint("Horizontal", 23, 3, 33, 3))
sketch1.addConstraint(Sketcher.Constraint("Horizontal", 17, 3, 39, 3))
sketch1.addConstraint(Sketcher.Constraint("Horizontal", 15, 3, 41, 3))
sketch1.addConstraint(Sketcher.Constraint("Horizontal", 11, 3, 45, 3))
sketch1.addConstraint(Sketcher.Constraint("Horizontal", 9, 3, 47, 3))
sketch1.addConstraint(Sketcher.Constraint("Horizontal", 7, 3, 49, 3))
sketch1.addConstraint(Sketcher.Constraint("Horizontal", 3, 3, 53, 3))
sketch1.addConstraint(Sketcher.Constraint("Horizontal", 1, 3, 55, 3))
sketch1.addConstraint(Sketcher.Constraint("Horizontal", 61, 3, 67, 3))
sketch1.addConstraint(Sketcher.Constraint("Horizontal", 26, 2, 29, 2))
sketch1.addConstraint(Sketcher.Constraint("Vertical", 7, 3, 13, 3))
sketch1.addConstraint(Sketcher.Constraint("Vertical", 5, 3, 15, 3))
sketch1.addConstraint(Sketcher.Constraint("Vertical", 41, 3, 51, 3))
sketch1.addConstraint(Sketcher.Constraint("Vertical", 35, 3, 57, 3))
sketch1.addConstraint(Sketcher.Constraint("Vertical", 33, 3, 59, 3))
sketch1.addConstraint(Sketcher.Constraint("Vertical", 29, 3, 63, 3))
sketch1.addConstraint(Sketcher.Constraint("Vertical", 27, 3, 65, 3))
sketch1.addConstraint(Sketcher.Constraint("Vertical", 21, 3, 71, 3))
sketch1.addConstraint(Sketcher.Constraint("Equal", 22, 34))
sketch1.addConstraint(Sketcher.Constraint("Equal", 20, 36))
sketch1.addConstraint(Sketcher.Constraint("Equal", 14, 42))
sketch1.addConstraint(Sketcher.Constraint("Equal", 56, 2))
sketch1.addConstraint(Sketcher.Constraint("Equal", 70, 4))
sketch1.addConstraint(Sketcher.Constraint("Equal", 64, 10))
sketch1.addConstraint(Sketcher.Constraint("Equal", 4, 16))
sketch1.addConstraint(Sketcher.Constraint("Equal", 2, 18))
sketch1.addConstraint(Sketcher.Constraint("Equal", 50, 24))
sketch1.addConstraint(Sketcher.Constraint("Equal", 32, 60))
sketch1.addConstraint(Sketcher.Constraint("Equal", 12, 26))
sketch1.addConstraint(Sketcher.Constraint("Diameter", 72, Q("5 mm")))
sketch1.addConstraint(Sketcher.Constraint("Radius", 1, Q("2 mm")))
sketch1.addConstraint(Sketcher.Constraint("Radius", 9, Q("3 mm")))
sketch1.addConstraint(Sketcher.Constraint("Radius", 3, Q("0.9 mm")))
sketch1.addConstraint(Sketcher.Constraint("Radius", 5, Q("0.5 mm")))
sketch1.addConstraint(Sketcher.Constraint("DistanceX", 0, 2, 0, 1, Q("4.9 mm")))
sketch1.addConstraint(Sketcher.Constraint("DistanceX", 28, 1, 28, 2, Q("3.900958 mm")))
sketch1.addConstraint(Sketcher.Constraint("DistanceY", -1, 1, 12, 2, Q("26.320501 mm")))
sketch1.addConstraint(Sketcher.Constraint("DistanceX", 6, 1, 6, 2, Q("0.404927 mm")))
sketch1.addConstraint(Sketcher.Constraint("DistanceX", 22, 2, 22, 1, Q("2.781086 mm")))
sketch1.addConstraint(Sketcher.Constraint("DistanceY", -1, 1, 1, 3, Q("12.085862 mm")))
sketch1.addConstraint(Sketcher.Constraint("DistanceX", -1, 1, 23, 3, Q("1.076162 mm")))
sketch1.addConstraint(Sketcher.Constraint("DistanceY", -1, 1, 72, 3, Q("20.085862 mm")))
sketch1.addConstraint(Sketcher.Constraint("DistanceX", -1, 1, 72, 3, Q("6.957248 mm")))
sketch1.setExpression("Constraints[169]", "Params.sketch1_diameter")
sketch1.setExpression("Constraints[170]", "Params.sketch1_radius")
sketch1.setExpression("Constraints[171]", "Params.sketch1_radius2")
sketch1.setExpression("Constraints[172]", "Params.sketch1_radius3")
sketch1.setExpression("Constraints[173]", "Params.sketch1_radius4")
pad1 = body.newObject("PartDesign::Pad", "Pad")
pad1.Profile = sketch1
pad1.setExpression("Length", "Params.pad1_length")
pad1.Reversed = True

# Sketch on YZ plane
sketch2 = body.newObject("Sketcher::SketchObject", "Sketch001")
sketch2.AttachmentSupport = (doc.getObject("YZ_Plane"), [""])
sketch2.MapMode = "FlatFace"
sketch2.AttachmentOffset = App.Placement(App.Vector(0, 0, 16.957248), App.Rotation())
sketch2.addGeometry(Part.LineSegment(App.Vector(0, 30, 0), App.Vector(0, 10, 0)), False)
sketch2.addGeometry(Part.LineSegment(App.Vector(0, 10, 0), App.Vector(20, 10, 0)), False)
sketch2.addGeometry(Part.LineSegment(App.Vector(20, 10, 0), App.Vector(0, 30, 0)), False)
sketch2.addConstraint(Sketcher.Constraint("Coincident", 0, 2, 1, 1))
sketch2.addConstraint(Sketcher.Constraint("Coincident", 1, 2, 2, 1))
sketch2.addConstraint(Sketcher.Constraint("Coincident", 2, 2, 0, 1))
sketch2.addConstraint(Sketcher.Constraint("Vertical", 0))
sketch2.addConstraint(Sketcher.Constraint("Horizontal", 1))
sketch2.addConstraint(Sketcher.Constraint("PointOnObject", 0, 2, -2))
sketch2.addConstraint(Sketcher.Constraint("Equal", 1, 0))
sketch2.addConstraint(Sketcher.Constraint("DistanceX", 1, 1, 1, 2, Q("20 mm")))
sketch2.addConstraint(Sketcher.Constraint("DistanceY", -1, 1, 0, 2, Q("10.085862 mm")))
sketch2.setExpression("Constraints[7]", "Params.sketch2_width")
pocket1 = body.newObject("PartDesign::Pocket", "Pocket")
pocket1.Profile = sketch2
pocket1.Type = "ThroughAll"

doc.recompute()
